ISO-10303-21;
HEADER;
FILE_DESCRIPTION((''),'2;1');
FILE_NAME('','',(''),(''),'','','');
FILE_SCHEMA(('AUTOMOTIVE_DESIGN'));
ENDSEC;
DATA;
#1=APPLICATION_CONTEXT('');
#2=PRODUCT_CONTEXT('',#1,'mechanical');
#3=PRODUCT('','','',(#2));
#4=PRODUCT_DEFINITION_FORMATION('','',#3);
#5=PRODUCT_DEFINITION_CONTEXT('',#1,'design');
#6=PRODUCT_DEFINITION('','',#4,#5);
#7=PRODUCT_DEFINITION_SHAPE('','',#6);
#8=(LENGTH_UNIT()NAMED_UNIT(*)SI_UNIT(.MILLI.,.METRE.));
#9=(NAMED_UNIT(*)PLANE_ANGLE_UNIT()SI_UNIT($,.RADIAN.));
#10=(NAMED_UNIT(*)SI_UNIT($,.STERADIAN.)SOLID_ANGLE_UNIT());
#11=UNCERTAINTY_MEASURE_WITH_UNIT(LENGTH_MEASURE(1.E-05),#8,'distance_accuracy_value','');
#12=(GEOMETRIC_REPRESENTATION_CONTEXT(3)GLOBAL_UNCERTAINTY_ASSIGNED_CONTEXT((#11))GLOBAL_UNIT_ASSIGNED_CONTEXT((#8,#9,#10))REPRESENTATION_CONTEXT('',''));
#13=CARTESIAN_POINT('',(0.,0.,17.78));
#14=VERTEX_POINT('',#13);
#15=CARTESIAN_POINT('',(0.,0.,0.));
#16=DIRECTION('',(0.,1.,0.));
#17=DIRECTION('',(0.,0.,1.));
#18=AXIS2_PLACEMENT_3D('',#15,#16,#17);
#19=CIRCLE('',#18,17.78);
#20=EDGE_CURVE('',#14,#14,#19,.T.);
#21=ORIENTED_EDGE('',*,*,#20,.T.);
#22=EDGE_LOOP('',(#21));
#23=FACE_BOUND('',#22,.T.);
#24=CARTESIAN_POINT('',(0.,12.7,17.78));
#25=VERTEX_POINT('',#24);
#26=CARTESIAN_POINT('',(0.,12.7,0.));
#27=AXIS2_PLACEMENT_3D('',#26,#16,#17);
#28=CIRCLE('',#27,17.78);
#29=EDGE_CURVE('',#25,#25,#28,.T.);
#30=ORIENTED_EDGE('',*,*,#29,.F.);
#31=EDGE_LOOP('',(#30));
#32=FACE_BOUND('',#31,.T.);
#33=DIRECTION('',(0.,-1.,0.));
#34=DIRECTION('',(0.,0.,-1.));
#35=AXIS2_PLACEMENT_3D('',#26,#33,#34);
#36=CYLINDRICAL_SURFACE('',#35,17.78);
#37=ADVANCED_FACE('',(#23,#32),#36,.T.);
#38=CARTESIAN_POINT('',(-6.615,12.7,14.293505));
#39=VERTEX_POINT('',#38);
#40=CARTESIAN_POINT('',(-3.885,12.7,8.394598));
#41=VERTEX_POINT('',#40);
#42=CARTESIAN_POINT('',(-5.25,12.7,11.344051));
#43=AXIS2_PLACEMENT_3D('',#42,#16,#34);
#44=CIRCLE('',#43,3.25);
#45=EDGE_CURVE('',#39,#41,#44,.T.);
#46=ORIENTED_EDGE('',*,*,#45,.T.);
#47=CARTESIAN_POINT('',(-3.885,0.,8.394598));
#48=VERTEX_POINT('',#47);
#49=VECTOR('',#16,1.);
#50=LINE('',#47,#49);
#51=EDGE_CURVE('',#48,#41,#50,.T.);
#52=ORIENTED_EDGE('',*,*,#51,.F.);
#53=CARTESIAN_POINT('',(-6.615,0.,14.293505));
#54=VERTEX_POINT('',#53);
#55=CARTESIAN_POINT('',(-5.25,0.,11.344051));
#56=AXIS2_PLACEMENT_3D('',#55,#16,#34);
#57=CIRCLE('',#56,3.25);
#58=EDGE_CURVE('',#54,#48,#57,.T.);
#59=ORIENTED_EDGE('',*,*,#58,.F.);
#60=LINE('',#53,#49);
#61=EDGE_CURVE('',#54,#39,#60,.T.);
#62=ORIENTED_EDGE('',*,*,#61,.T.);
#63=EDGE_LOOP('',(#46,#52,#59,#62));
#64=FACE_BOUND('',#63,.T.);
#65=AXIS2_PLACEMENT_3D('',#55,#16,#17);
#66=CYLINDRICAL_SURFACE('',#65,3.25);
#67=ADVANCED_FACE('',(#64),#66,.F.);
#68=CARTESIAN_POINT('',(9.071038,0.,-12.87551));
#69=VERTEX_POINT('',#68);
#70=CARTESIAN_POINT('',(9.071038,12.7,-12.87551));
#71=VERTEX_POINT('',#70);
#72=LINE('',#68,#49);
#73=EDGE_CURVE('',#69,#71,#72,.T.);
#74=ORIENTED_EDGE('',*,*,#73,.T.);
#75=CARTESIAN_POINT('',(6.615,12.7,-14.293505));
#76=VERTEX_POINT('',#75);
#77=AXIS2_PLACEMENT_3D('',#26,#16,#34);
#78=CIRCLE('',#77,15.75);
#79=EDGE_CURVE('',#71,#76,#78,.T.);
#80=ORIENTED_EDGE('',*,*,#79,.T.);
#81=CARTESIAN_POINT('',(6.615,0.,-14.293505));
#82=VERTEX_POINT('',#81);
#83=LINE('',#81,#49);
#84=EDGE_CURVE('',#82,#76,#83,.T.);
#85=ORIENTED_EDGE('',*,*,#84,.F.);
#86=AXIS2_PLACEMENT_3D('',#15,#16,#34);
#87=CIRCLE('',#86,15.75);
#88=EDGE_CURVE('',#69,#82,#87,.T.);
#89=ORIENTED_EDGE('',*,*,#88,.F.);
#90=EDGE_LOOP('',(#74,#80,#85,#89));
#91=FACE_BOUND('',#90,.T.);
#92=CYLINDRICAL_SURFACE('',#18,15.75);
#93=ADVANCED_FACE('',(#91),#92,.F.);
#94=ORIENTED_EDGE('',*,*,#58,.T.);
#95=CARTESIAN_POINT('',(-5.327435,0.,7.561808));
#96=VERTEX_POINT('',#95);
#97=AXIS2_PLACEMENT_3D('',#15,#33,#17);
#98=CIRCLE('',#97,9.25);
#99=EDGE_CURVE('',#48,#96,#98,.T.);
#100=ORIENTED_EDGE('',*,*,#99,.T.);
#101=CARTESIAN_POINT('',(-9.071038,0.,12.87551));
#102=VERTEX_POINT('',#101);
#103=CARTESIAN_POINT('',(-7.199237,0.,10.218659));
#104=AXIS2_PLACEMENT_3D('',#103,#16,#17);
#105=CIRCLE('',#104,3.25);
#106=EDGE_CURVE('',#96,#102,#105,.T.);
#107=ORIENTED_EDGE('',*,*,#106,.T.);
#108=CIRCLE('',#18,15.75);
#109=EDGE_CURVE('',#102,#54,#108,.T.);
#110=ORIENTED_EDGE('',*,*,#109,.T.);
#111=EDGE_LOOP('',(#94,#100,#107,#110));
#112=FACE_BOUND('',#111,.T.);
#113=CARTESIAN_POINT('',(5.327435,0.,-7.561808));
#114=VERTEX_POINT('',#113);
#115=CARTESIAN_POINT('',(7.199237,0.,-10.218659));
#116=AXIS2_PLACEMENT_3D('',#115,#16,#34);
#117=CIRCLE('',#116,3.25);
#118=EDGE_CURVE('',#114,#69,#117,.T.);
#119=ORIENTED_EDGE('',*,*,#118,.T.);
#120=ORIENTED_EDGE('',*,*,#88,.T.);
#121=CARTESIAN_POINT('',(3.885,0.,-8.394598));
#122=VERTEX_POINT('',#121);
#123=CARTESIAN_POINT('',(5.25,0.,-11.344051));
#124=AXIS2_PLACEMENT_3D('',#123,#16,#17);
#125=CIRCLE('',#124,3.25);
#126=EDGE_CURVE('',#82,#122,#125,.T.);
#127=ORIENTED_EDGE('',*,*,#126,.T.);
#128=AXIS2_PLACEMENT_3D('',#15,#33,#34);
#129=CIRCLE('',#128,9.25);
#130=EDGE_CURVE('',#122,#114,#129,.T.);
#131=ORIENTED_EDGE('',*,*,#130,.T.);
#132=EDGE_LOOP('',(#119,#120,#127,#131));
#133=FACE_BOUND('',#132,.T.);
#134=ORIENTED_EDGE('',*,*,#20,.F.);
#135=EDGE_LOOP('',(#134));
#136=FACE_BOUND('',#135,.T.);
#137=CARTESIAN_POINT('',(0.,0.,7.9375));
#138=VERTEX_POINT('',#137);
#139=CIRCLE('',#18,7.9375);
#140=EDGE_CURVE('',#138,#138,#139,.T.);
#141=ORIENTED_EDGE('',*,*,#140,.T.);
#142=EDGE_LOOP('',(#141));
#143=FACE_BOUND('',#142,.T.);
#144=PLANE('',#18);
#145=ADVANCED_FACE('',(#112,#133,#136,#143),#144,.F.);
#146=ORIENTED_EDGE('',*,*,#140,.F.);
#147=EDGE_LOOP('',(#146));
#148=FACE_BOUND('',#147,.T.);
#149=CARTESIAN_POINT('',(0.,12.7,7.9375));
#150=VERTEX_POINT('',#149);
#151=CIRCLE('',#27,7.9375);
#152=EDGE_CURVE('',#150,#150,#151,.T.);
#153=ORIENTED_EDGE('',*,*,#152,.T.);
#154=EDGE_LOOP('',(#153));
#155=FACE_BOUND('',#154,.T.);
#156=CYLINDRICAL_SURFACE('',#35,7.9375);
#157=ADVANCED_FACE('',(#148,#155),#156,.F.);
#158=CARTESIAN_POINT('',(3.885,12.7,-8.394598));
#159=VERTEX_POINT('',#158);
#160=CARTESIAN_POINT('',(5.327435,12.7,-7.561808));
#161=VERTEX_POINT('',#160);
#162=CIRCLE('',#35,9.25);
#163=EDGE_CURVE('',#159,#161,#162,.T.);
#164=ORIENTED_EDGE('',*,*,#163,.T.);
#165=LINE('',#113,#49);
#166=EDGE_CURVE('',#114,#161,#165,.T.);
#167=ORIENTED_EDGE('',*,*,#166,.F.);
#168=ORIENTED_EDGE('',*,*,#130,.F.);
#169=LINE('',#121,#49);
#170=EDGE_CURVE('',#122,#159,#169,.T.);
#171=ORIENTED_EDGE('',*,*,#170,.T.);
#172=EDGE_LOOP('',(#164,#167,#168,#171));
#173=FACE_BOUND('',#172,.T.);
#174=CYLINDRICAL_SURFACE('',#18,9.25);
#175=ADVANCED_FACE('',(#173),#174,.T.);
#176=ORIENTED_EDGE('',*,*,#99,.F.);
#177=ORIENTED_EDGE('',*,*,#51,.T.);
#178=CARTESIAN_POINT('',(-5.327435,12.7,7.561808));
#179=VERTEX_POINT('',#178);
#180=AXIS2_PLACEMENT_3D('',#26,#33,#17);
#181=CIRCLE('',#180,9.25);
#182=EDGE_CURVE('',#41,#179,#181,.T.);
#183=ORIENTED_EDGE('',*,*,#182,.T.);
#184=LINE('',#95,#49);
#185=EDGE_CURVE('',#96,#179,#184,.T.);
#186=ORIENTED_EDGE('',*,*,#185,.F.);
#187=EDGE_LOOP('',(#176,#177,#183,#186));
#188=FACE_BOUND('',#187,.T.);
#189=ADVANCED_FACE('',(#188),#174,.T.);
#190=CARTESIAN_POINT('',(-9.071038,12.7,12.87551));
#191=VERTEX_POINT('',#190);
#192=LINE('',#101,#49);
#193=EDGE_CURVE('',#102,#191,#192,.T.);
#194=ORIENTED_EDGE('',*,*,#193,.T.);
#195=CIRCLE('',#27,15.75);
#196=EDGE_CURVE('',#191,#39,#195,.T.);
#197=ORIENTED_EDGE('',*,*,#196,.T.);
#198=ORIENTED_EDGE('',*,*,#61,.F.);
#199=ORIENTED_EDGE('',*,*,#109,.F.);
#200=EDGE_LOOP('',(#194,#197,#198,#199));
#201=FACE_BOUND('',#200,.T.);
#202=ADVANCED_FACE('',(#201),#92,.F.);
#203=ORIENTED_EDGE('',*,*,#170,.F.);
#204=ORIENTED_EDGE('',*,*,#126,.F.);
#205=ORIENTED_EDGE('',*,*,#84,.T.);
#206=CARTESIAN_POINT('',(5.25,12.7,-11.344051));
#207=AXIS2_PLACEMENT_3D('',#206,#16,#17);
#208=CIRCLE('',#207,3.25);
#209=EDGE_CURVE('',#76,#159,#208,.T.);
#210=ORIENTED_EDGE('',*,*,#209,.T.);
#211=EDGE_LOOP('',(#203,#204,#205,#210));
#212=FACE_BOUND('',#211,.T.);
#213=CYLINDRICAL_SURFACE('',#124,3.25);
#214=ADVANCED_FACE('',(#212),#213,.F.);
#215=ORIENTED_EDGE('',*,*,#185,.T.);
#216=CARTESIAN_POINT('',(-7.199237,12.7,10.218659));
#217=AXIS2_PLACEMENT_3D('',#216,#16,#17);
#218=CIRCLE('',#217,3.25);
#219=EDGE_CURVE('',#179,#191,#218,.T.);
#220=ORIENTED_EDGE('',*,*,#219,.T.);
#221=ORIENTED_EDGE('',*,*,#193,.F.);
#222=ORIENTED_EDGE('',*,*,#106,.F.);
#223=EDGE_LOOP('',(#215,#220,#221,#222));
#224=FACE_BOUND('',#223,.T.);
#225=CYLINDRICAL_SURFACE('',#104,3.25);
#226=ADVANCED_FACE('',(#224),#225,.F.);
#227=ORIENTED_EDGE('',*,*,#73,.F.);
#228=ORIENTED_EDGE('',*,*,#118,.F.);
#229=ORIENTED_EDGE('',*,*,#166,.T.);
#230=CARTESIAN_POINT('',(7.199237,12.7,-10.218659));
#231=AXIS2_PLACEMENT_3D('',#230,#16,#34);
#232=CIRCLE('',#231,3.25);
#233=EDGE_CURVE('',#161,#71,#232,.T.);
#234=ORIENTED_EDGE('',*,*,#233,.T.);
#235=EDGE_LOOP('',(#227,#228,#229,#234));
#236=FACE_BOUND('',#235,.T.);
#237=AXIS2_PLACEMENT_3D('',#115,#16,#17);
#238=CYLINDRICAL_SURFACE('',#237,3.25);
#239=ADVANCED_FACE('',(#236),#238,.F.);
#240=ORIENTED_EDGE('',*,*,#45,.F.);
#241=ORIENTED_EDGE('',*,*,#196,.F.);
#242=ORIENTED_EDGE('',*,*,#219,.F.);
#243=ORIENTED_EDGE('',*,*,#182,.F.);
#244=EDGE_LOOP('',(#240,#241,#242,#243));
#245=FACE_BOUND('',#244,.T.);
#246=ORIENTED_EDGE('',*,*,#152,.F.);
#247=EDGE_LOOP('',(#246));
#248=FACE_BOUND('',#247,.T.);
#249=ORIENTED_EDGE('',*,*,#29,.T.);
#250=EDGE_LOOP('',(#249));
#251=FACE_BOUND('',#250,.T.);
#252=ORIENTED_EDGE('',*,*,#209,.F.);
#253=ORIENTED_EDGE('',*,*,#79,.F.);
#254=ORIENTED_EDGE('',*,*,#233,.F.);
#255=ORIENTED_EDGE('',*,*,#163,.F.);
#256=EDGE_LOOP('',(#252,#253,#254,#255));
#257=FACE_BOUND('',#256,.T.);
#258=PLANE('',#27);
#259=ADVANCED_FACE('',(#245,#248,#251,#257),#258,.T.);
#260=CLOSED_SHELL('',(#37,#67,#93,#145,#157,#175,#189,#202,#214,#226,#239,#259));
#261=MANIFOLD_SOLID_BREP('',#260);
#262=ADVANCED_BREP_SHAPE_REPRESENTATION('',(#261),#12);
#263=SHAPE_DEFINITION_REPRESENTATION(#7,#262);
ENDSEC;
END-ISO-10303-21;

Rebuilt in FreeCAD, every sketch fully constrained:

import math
import FreeCAD as App
import Part
import Sketcher

V = App.Vector

doc = App.newDocument("Part")
body = doc.addObject("PartDesign::Body", "Body")

sketch1 = doc.addObject("Sketcher::SketchObject", "Sketch")
body.addObject(sketch1)
sketch1.AttachmentSupport = (doc.XZ_Plane, [""])
sketch1.MapMode = "FlatFace"
sketch1.addGeometry(Part.Circle(V(0, 0, 0), V(0, 0, 1), 17.78), False)
sketch1.addGeometry(Part.Circle(V(0, 0, 0), V(0, 0, 1), 7.9375), False)
sketch1.addConstraint(Sketcher.Constraint("Coincident", 0, 3, -1, 1))
sketch1.addConstraint(Sketcher.Constraint("Coincident", 1, 3, -1, 1))
sketch1.addConstraint(Sketcher.Constraint("Diameter", 0, 35.56))
sketch1.addConstraint(Sketcher.Constraint("Diameter", 1, 15.875))
pad1 = doc.addObject("PartDesign::Pad", "Pad")
body.addObject(pad1)
pad1.Profile = sketch1
pad1.Length = 12.7
pad1.Reversed = True

sketch2 = doc.addObject("Sketcher::SketchObject", "Sketch001")
body.addObject(sketch2)
sketch2.AttachmentSupport = (doc.XZ_Plane, [""])
sketch2.MapMode = "FlatFace"
sketch2.AttachmentOffset = App.Placement(V(0, 0, -12.7), App.Rotation())
sketch2.addGeometry(Part.ArcOfCircle(Part.Circle(V(0, 0, 0), V(0, 0, 1), 15.75), math.radians(-65.165413), math.radians(-54.834587)), False)
sketch2.addGeometry(Part.ArcOfCircle(Part.Circle(V(5.25, -11.344051, 0), V(0, 0, 1), 3.25), math.radians(114.834587), math.radians(294.834587)), False)
sketch2.addGeometry(Part.ArcOfCircle(Part.Circle(V(0, 0, 0), V(0, 0, 1), 9.25), math.radians(-65.165413), math.radians(-54.834587)), False)
sketch2.addGeometry(Part.ArcOfCircle(Part.Circle(V(7.199237, -10.218659, 0), V(0, 0, 1), 3.25), math.radians(-54.834587), math.radians(125.165412)), False)
sketch2.addConstraint(Sketcher.Constraint("Tangent", 0, 1, 1, 2))
sketch2.addConstraint(Sketcher.Constraint("Tangent", 1, 1, 2, 1))
sketch2.addConstraint(Sketcher.Constraint("Tangent", 2, 2, 3, 2))
sketch2.addConstraint(Sketcher.Constraint("Tangent", 3, 1, 0, 2))
sketch2.addConstraint(Sketcher.Constraint("Coincident", 0, 3, -1, 1))
sketch2.addConstraint(Sketcher.Constraint("Coincident", 2, 3, -1, 1))
sketch2.addConstraint(Sketcher.Constraint("Radius", 0, 15.75))
sketch2.addConstraint(Sketcher.Constraint("Radius", 1, 3.25))
sketch2.addConstraint(Sketcher.Constraint("DistanceX", -1, 1, 1, 3, 5.25))
sketch2.addConstraint(Sketcher.Constraint("DistanceX", 2, 2, 3, 3, 1.871802))
pocket1 = doc.addObject("PartDesign::Pocket", "Pocket")
body.addObject(pocket1)
pocket1.Profile = sketch2
pocket1.Type = "ThroughAll"
pocket1.Reversed = True
doc.recompute()

polarpattern = doc.addObject("PartDesign::PolarPattern", "PolarPattern")
body.addObject(polarpattern)
polarpattern.Originals = [pocket1]
polarpattern.Axis = (doc.Y_Axis, [""])
polarpattern.Angle = 360
polarpattern.Occurrences = 2
body.Tip = polarpattern

doc.recompute()
